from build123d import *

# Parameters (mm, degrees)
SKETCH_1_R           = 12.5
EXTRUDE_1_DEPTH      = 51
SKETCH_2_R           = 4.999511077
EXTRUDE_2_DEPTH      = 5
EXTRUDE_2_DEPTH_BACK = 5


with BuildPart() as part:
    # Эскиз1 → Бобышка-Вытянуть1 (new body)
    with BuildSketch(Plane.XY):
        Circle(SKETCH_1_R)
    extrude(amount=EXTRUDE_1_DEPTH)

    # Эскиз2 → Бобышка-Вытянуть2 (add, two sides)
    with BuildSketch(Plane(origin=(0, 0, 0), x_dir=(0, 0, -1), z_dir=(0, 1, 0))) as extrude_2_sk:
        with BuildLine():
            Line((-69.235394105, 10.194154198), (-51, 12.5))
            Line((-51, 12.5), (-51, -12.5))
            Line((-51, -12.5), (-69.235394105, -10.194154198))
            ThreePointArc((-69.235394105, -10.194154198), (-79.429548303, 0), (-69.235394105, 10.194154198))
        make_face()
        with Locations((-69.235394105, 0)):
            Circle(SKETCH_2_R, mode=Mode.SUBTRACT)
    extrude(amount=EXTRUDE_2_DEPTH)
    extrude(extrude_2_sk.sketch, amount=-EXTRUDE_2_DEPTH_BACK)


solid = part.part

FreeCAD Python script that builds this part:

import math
import FreeCAD as App
import Part
import Sketcher

doc = App.newDocument("Part")
body = doc.addObject("PartDesign::Body", "Body")

# Sketch on XY plane
sketch1 = body.newObject("Sketcher::SketchObject", "Sketch")
sketch1.AttachmentSupport = (doc.getObject("XY_Plane"), [""])
sketch1.MapMode = "FlatFace"
sketch1.addGeometry(Part.Circle(App.Vector(0, 0, 0), App.Vector(0, 0, 1), 12.5), False)
sketch1.addConstraint(Sketcher.Constraint("Coincident", 0, 3, -1, 1))
sketch1.addConstraint(Sketcher.Constraint("Diameter", 0, 25.0))
pad1 = body.newObject("PartDesign::Pad", "Pad")
pad1.Profile = sketch1
pad1.Length = 51

# Sketch on XZ plane
sketch2 = body.newObject("Sketcher::SketchObject", "Sketch001")
sketch2.AttachmentSupport = (doc.getObject("XZ_Plane"), [""])
sketch2.MapMode = "FlatFace"
sketch2.addGeometry(Part.LineSegment(App.Vector(-12.5, 51, 0), App.Vector(-10.194154, 69.235394, 0)), False)
sketch2.addGeometry(Part.ArcOfCircle(Part.Circle(App.Vector(0, 69.235394, 0), App.Vector(0, 0, 1), 10.194154), math.radians(0), math.radians(180)), False)
sketch2.addGeometry(Part.LineSegment(App.Vector(10.194154, 69.235394, 0), App.Vector(12.5, 51, 0)), False)
sketch2.addGeometry(Part.LineSegment(App.Vector(12.5, 51, 0), App.Vector(-12.5, 51, 0)), False)
sketch2.addGeometry(Part.Circle(App.Vector(0, 69.235394, 0), App.Vector(0, 0, 1), 4.999511), False)
sketch2.addConstraint(Sketcher.Constraint("Coincident", 0, 2, 1, 2))
sketch2.addConstraint(Sketcher.Constraint("Coincident", 1, 1, 2, 1))
sketch2.addConstraint(Sketcher.Constraint("Coincident", 2, 2, 3, 1))
sketch2.addConstraint(Sketcher.Constraint("Coincident", 3, 2, 0, 1))
sketch2.addConstraint(Sketcher.Constraint("Horizontal", 3))
sketch2.addConstraint(Sketcher.Constraint("Coincident", 4, 3, 1, 3))
sketch2.addConstraint(Sketcher.Constraint("Symmetric", 0, 2, 1, 1, -2))
sketch2.addConstraint(Sketcher.Constraint("Horizontal", 4, 3, 0, 2))
sketch2.addConstraint(Sketcher.Constraint("Equal", 0, 2))
sketch2.addConstraint(Sketcher.Constraint("DistanceX", 3, 2, 3, 1, 25.0))
sketch2.addConstraint(Sketcher.Constraint("DistanceY", -1, 1, 2, 2, 51.0))
sketch2.addConstraint(Sketcher.Constraint("Diameter", 4, 9.999022))
sketch2.addConstraint(Sketcher.Constraint("Radius", 1, 10.194154))
sketch2.addConstraint(Sketcher.Constraint("Distance", 0, 18.380602))
pad2 = body.newObject("PartDesign::Pad", "Pad001")
pad2.Profile = sketch2
pad2.Type = "TwoLengths"
pad2.Length = 5
pad2.Length2 = 5
pad2.Reversed = True

doc.recompute()
